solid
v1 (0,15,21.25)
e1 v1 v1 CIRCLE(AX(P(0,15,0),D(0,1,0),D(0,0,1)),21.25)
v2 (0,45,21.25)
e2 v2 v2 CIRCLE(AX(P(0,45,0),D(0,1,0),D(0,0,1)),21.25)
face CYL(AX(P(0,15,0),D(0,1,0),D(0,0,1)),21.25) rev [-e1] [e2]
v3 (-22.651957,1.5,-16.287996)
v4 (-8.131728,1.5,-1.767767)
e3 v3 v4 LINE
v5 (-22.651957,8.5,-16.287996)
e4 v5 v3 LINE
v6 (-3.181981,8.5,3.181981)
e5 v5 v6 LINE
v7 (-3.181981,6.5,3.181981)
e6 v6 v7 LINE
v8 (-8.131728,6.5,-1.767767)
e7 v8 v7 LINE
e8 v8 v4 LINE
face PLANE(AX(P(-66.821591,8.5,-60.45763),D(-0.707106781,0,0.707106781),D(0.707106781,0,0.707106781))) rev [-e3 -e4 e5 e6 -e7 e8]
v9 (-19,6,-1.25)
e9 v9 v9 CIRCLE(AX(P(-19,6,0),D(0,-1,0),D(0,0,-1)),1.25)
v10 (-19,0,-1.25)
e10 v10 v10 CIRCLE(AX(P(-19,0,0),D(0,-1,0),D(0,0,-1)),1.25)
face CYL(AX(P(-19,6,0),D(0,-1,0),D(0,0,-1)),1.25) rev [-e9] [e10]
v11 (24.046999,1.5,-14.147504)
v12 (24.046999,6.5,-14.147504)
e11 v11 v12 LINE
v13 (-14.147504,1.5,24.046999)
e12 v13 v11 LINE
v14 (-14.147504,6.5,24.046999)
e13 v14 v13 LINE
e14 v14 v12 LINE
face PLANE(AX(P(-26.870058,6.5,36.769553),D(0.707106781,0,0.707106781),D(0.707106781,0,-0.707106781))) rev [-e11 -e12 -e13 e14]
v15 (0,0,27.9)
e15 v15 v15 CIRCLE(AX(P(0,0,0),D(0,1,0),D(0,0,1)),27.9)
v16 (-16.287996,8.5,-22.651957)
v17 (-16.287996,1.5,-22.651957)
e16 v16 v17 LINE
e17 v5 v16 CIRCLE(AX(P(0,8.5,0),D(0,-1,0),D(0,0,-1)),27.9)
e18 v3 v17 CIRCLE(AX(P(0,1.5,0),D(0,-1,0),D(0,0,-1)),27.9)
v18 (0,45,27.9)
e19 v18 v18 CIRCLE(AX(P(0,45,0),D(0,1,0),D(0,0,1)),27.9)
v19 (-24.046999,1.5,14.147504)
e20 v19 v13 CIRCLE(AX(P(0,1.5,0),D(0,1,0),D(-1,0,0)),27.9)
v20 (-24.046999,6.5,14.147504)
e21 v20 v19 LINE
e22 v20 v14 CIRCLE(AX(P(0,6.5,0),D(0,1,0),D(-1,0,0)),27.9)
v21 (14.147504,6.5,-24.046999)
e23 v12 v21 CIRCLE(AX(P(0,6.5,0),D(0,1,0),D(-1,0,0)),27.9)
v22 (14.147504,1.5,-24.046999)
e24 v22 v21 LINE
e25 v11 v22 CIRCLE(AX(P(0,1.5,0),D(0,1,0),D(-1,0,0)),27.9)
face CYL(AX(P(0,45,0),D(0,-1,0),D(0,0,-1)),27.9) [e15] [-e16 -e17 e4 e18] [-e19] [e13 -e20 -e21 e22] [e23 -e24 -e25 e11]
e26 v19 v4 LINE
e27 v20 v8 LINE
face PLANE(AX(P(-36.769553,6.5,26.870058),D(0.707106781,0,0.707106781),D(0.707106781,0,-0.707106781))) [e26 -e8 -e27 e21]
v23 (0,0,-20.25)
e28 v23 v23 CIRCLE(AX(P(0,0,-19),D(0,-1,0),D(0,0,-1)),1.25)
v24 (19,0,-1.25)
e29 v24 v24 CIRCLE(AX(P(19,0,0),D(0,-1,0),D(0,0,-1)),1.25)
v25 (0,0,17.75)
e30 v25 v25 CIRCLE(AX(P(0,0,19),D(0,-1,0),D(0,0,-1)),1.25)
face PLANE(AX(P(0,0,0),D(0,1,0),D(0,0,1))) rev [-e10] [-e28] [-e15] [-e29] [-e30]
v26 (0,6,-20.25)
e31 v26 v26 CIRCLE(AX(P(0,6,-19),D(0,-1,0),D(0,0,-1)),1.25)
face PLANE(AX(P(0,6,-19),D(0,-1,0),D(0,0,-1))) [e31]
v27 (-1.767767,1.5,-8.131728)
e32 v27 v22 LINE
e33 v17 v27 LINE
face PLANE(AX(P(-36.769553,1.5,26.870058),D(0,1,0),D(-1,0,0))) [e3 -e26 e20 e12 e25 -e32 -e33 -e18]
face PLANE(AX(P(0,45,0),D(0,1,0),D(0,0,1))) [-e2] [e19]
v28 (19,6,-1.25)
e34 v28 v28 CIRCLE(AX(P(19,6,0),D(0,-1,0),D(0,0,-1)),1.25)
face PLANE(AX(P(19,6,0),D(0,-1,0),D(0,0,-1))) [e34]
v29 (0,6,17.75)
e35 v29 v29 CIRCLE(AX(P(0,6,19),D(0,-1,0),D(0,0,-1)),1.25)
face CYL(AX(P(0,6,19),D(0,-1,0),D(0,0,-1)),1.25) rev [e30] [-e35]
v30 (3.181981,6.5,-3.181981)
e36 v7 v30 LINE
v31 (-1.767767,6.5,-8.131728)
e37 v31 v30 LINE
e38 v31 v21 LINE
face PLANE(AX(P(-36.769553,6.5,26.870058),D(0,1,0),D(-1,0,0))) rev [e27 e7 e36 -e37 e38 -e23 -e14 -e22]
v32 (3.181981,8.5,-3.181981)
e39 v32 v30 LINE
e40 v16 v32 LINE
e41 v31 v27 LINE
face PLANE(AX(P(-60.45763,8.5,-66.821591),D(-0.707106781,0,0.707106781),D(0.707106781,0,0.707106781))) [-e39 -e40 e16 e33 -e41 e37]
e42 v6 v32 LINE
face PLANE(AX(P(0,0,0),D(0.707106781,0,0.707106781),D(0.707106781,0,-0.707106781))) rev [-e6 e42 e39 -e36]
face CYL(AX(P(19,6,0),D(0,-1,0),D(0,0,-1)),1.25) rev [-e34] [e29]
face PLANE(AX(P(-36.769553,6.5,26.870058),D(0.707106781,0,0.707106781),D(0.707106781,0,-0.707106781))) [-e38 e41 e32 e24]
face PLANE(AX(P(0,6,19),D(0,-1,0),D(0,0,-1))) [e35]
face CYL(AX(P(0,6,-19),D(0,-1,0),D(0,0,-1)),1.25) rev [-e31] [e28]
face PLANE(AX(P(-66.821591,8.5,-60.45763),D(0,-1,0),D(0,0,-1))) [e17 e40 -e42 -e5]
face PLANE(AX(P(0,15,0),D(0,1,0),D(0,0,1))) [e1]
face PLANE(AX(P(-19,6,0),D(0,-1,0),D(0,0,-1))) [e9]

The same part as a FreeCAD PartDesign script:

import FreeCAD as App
import Part
import Sketcher


def add_polygon(sketch, points):
    """Adds a closed chain of lines whose ends are joined by coincident constraints."""
    first, n = sketch.GeometryCount, len(points)
    for a, b in zip(points, points[1:] + points[:1]):
        sketch.addGeometry(Part.LineSegment(App.Vector(*a, 0), App.Vector(*b, 0)), False)
    for i in range(n):
        sketch.addConstraint(Sketcher.Constraint("Coincident", first + i, 2, first + (i + 1) % n, 1))

doc = App.newDocument("Part")
body = doc.addObject("PartDesign::Body", "Body")

sketch1 = doc.addObject("Sketcher::SketchObject", "Sketch")
body.addObject(sketch1)
sketch1.AttachmentSupport = (doc.XZ_Plane, [""])
sketch1.MapMode = "FlatFace"
sketch1.addGeometry(Part.Circle(App.Vector(0, 0, 0), App.Vector(0, 0, 1), 27.9), False)
sketch1.addConstraint(Sketcher.Constraint("Coincident", 0, 3, -1, 1))
sketch1.addConstraint(Sketcher.Constraint("Diameter", 0, 55.8))
pad1 = doc.addObject("PartDesign::Pad", "Pad")
body.addObject(pad1)
pad1.Profile = sketch1
pad1.Length = 45
pad1.Reversed = True

sketch2 = doc.addObject("Sketcher::SketchObject", "Sketch001")
body.addObject(sketch2)
sketch2.AttachmentSupport = (doc.XZ_Plane, [""])
sketch2.MapMode = "FlatFace"
sketch2.AttachmentOffset = App.Placement(App.Vector(0, 0, -45), App.Rotation())
sketch2.addGeometry(Part.Circle(App.Vector(0, 0, 0), App.Vector(0, 0, 1), 21.25), False)
sketch2.addConstraint(Sketcher.Constraint("Coincident", 0, 3, -1, 1))
sketch2.addConstraint(Sketcher.Constraint("Diameter", 0, 42.5))
pocket1 = doc.addObject("PartDesign::Pocket", "Pocket")
body.addObject(pocket1)
pocket1.Profile = sketch2
pocket1.Length = 30
pocket1.Reversed = True

sketch3 = doc.addObject("Sketcher::SketchObject", "Sketch002")
body.addObject(sketch3)
sketch3.AttachmentSupport = (doc.XZ_Plane, [""])
sketch3.MapMode = "FlatFace"
sketch3.addGeometry(Part.Circle(App.Vector(-19, 0, 0), App.Vector(0, 0, 1), 1.25), False)
sketch3.addGeometry(Part.Circle(App.Vector(0, 19, 0), App.Vector(0, 0, 1), 1.25), False)
sketch3.addGeometry(Part.Circle(App.Vector(19, 0, 0), App.Vector(0, 0, 1), 1.25), False)
sketch3.addGeometry(Part.Circle(App.Vector(0, -19, 0), App.Vector(0, 0, 1), 1.25), False)
sketch3.addConstraint(Sketcher.Constraint("Equal", 0, 1))
sketch3.addConstraint(Sketcher.Constraint("Equal", 1, 2))
sketch3.addConstraint(Sketcher.Constraint("Equal", 2, 3))
sketch3.addConstraint(Sketcher.Constraint("Symmetric", 0, 3, 2, 3, -1, 1))
sketch3.addConstraint(Sketcher.Constraint("Symmetric", 1, 3, 3, 3, -1, 1))
sketch3.addConstraint(Sketcher.Constraint("PointOnObject", 0, 3, -1))
sketch3.addConstraint(Sketcher.Constraint("PointOnObject", 1, 3, -2))
sketch3.addConstraint(Sketcher.Constraint("Diameter", 0, 2.5))
sketch3.addConstraint(Sketcher.Constraint("DistanceX", 0, 3, -1, 1, 19.0))
sketch3.addConstraint(Sketcher.Constraint("DistanceY", -1, 1, 1, 3, 19.0))
pocket2 = doc.addObject("PartDesign::Pocket", "Pocket001")
body.addObject(pocket2)
pocket2.Profile = sketch3
pocket2.Length = 6

sketch4 = doc.addObject("Sketcher::SketchObject", "Sketch003")
body.addObject(sketch4)
sketch4.Placement = App.Placement(App.Vector(0, 0, 0), App.Rotation(App.Vector(0, 1, 0), App.Vector(0.707106781, 0, 0.707106781), App.Vector(0.707106781, 0, -0.707106781), "ZXY"))
add_polygon(sketch4, [(1.5, 7), (1.5, -7), (6.5, -7), (6.5, 7)])
sketch4.addConstraint(Sketcher.Constraint("Vertical", 0))
sketch4.addConstraint(Sketcher.Constraint("Horizontal", 1))
sketch4.addConstraint(Sketcher.Constraint("Vertical", 2))
sketch4.addConstraint(Sketcher.Constraint("Horizontal", 3))
sketch4.addConstraint(Sketcher.Constraint("DistanceX", 1, 1, 1, 2, 5.0))
sketch4.addConstraint(Sketcher.Constraint("DistanceY", 0, 2, 0, 1, 14.0))
sketch4.addConstraint(Sketcher.Constraint("DistanceY", 0, 2, -1, 1, 7.0))
sketch4.addConstraint(Sketcher.Constraint("DistanceX", -1, 1, 0, 2, 1.5))
pocket3 = doc.addObject("PartDesign::Pocket", "Pocket002")
body.addObject(pocket3)
pocket3.Profile = sketch4
pocket3.Length = 90
pocket3.Midplane = True

sketch5 = doc.addObject("Sketcher::SketchObject", "Sketch004")
body.addObject(sketch5)
sketch5.Placement = App.Placement(App.Vector(0, 0, 0), App.Rotation(App.Vector(0, 1, 0), App.Vector(-0.707106781, 0, 0.707106781), App.Vector(0.707106781, 0, 0.707106781), "ZXY"))
add_polygon(sketch5, [(1.5, 4.5), (1.5, -4.5), (8.5, -4.5), (8.5, 4.5)])
sketch5.addConstraint(Sketcher.Constraint("Vertical", 0))
sketch5.addConstraint(Sketcher.Constraint("Horizontal", 1))
sketch5.addConstraint(Sketcher.Constraint("Vertical", 2))
sketch5.addConstraint(Sketcher.Constraint("Horizontal", 3))
sketch5.addConstraint(Sketcher.Constraint("DistanceX", 1, 1, 1, 2, 7.0))
sketch5.addConstraint(Sketcher.Constraint("DistanceY", 0, 2, 0, 1, 9.0))
sketch5.addConstraint(Sketcher.Constraint("DistanceX", -1, 1, 0, 2, 1.5))
sketch5.addConstraint(Sketcher.Constraint("DistanceY", 0, 2, -1, 1, 4.5))
pocket4 = doc.addObject("PartDesign::Pocket", "Pocket003")
body.addObject(pocket4)
pocket4.Profile = sketch5
pocket4.Length = 90

doc.recompute()
